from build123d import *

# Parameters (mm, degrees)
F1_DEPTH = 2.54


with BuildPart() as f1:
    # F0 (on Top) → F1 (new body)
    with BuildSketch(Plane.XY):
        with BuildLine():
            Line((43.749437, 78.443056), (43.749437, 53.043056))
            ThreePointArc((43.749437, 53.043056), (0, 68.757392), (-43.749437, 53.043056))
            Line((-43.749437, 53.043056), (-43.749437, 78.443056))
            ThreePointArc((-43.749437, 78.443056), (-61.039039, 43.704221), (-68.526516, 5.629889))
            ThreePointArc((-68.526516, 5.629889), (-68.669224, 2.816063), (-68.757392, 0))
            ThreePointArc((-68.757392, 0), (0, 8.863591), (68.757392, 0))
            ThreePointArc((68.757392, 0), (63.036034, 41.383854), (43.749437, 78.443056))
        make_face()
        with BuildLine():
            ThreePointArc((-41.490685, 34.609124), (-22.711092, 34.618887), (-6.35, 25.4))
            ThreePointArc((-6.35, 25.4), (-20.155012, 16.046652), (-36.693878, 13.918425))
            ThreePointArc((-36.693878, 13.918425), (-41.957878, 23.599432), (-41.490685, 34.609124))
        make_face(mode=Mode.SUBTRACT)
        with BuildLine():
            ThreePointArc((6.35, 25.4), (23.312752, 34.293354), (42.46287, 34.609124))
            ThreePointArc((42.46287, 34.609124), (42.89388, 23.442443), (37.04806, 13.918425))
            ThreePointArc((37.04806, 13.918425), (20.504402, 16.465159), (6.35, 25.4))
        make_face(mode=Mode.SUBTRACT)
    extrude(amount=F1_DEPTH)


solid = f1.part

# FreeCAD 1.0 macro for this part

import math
import FreeCAD as App
import Part
import Sketcher
from FreeCAD import Vector
Q = App.Units.Quantity

doc = App.newDocument("Part")
params = doc.addObject("Spreadsheet::Sheet", "Params")
for row, (alias, value) in enumerate([
    ("sketch1_height", "1 in"),
    ("pad1_length", "0.1 in"),
], start=1):
    params.set(f"A{row}", alias)
    params.set(f"B{row}", "=" + value)
    params.setAlias(f"B{row}", alias)

body = doc.addObject("PartDesign::Body", "Body")

# Sketch on XY plane
sketch1 = body.newObject("Sketcher::SketchObject", "Sketch")
sketch1.AttachmentSupport = (doc.getObject("XY_Plane"), [""])
sketch1.MapMode = "FlatFace"
sketch1.addGeometry(Part.LineSegment(Vector(43.749437, 78.443056, 0), Vector(43.749437, 53.043056, 0)), False)
sketch1.addGeometry(Part.ArcOfCircle(Part.Circle(Vector(0, -0.000002, 0), Vector(0, 0, 1), 68.757394), math.radians(50.484495), math.radians(129.515505)), False)
sketch1.addGeometry(Part.LineSegment(Vector(-43.749437, 53.043056, 0), Vector(-43.749437, 78.443056, 0)), False)
sketch1.addGeometry(Part.ArcOfCircle(Part.Circle(Vector(76.631078, -3.142572, 0), Vector(0, 0, 1), 145.42243), math.radians(145.873282), math.radians(176.54159)), False)
sketch1.addGeometry(Part.ArcOfCircle(Part.Circle(Vector(76.630629, -3.142536, 0), Vector(0, 0, 1), 145.42198), math.radians(176.541594), math.radians(178.761755)), False)
sketch1.addGeometry(Part.ArcOfCircle(Part.Circle(Vector(0, -262.25351, 0), Vector(0, 0, 1), 271.117101), math.radians(75.308898), math.radians(104.691102)), False)
sketch1.addGeometry(Part.ArcOfCircle(Part.Circle(Vector(-53.757498, 4.149616, 0), Vector(0, 0, 1), 122.585144), math.radians(-1.939884), math.radians(37.304856)), False)
sketch1.addGeometry(Part.ArcOfCircle(Part.Circle(Vector(34.895399, 54.942082, 0), Vector(0, 0, 1), 41.080097), math.radians(-134.016997), math.radians(-86.996236)), False)
sketch1.addGeometry(Part.ArcOfCircle(Part.Circle(Vector(33.55253, -5.861143, 0), Vector(0, 0, 1), 41.439555), math.radians(77.583289), math.radians(131.028834)), False)
sketch1.addGeometry(Part.ArcOfCircle(Part.Circle(Vector(24.273668, 28.315401, 0), Vector(0, 0, 1), 19.247286), math.radians(-48.417456), math.radians(19.086349)), False)
sketch1.addGeometry(Part.ArcOfCircle(Part.Circle(Vector(-21.850738, 28.26095, 0), Vector(0, 0, 1), 20.640418), math.radians(162.087733), math.radians(224.017315)), False)
sketch1.addGeometry(Part.ArcOfCircle(Part.Circle(Vector(-32.082301, -1.14029, 0), Vector(0, 0, 1), 36.966719), math.radians(45.885563), math.radians(104.744528)), False)
sketch1.addGeometry(Part.ArcOfCircle(Part.Circle(Vector(-32.893482, 49.712294, 0), Vector(0, 0, 1), 35.995057), math.radians(-96.060645), math.radians(-42.487882)), False)
sketch1.addConstraint(Sketcher.Constraint("Coincident", 0, 2, 1, 1))
sketch1.addConstraint(Sketcher.Constraint("Coincident", 1, 2, 2, 1))
sketch1.addConstraint(Sketcher.Constraint("Coincident", 2, 2, 3, 1))
sketch1.addConstraint(Sketcher.Constraint("Tangent", 3, 2, 4, 1))
sketch1.addConstraint(Sketcher.Constraint("Coincident", 4, 2, 5, 2))
sketch1.addConstraint(Sketcher.Constraint("Coincident", 5, 1, 6, 1))
sketch1.addConstraint(Sketcher.Constraint("Coincident", 6, 2, 0, 1))
sketch1.addConstraint(Sketcher.Constraint("Coincident", 7, 1, 8, 2))
sketch1.addConstraint(Sketcher.Constraint("Coincident", 8, 1, 9, 2))
sketch1.addConstraint(Sketcher.Constraint("Coincident", 9, 1, 7, 2))
sketch1.addConstraint(Sketcher.Constraint("Coincident", 10, 1, 11, 2))
sketch1.addConstraint(Sketcher.Constraint("Coincident", 11, 1, 12, 2))
sketch1.addConstraint(Sketcher.Constraint("Coincident", 12, 1, 10, 2))
sketch1.addConstraint(Sketcher.Constraint("Vertical", 0))
sketch1.addConstraint(Sketcher.Constraint("Vertical", 2))
sketch1.addConstraint(Sketcher.Constraint("Coincident", 1, 3, -1, 1))
sketch1.addConstraint(Sketcher.Constraint("Symmetric", 4, 2, 5, 1, -1, 1))
sketch1.addConstraint(Sketcher.Constraint("Symmetric", 2, 2, 6, 2, -2))
sketch1.addConstraint(Sketcher.Constraint("Symmetric", 7, 1, 11, 1, -2))
sketch1.addConstraint(Sketcher.Constraint("PointOnObject", 5, 3, -2))
sketch1.addConstraint(Sketcher.Constraint("Horizontal", 8, 1, 10, 1))
sketch1.addConstraint(Sketcher.Constraint("Horizontal", 9, 1, 12, 1))
sketch1.addConstraint(Sketcher.Constraint("DistanceY", 0, 2, 0, 1, Q("1 in")))
sketch1.addConstraint(Sketcher.Constraint("DistanceY", -1, 1, 7, 1, Q("1 in")))
sketch1.addConstraint(Sketcher.Constraint("DistanceX", 11, 1, 7, 1, Q("0.5 in")))
sketch1.addConstraint(Sketcher.Constraint("Radius", 5, 271.117101))
sketch1.addConstraint(Sketcher.Constraint("Radius", 3, 145.42243))
sketch1.addConstraint(Sketcher.Constraint("Radius", 4, 145.42198))
sketch1.addConstraint(Sketcher.Constraint("Radius", 11, 36.966719))
sketch1.addConstraint(Sketcher.Constraint("Radius", 1, 68.757394))
sketch1.addConstraint(Sketcher.Constraint("Radius", 6, 122.585144))
sketch1.addConstraint(Sketcher.Constraint("Radius", 7, 41.080097))
sketch1.addConstraint(Sketcher.Constraint("Radius", 8, 41.439555))
sketch1.addConstraint(Sketcher.Constraint("Radius", 9, 19.247286))
sketch1.addConstraint(Sketcher.Constraint("Radius", 10, 20.640418))
sketch1.addConstraint(Sketcher.Constraint("Radius", 12, 35.995057))
sketch1.addConstraint(Sketcher.Constraint("DistanceX", 10, 3, 7, 3, Q("2.2340999 in")))
sketch1.addConstraint(Sketcher.Constraint("DistanceX", 1, 2, 12, 3, Q("0.4273998 in")))
sketch1.addConstraint(Sketcher.Constraint("DistanceX", -1, 1, 7, 3, 34.895399))
sketch1.addConstraint(Sketcher.Constraint("DistanceY", -1, 1, 9, 3, 28.315401))
sketch1.addConstraint(Sketcher.Constraint("DistanceX", 11, 3, -1, 1, 32.082301))
sketch1.addConstraint(Sketcher.Constraint("DistanceX", 8, 3, 4, 3, 43.078099))
sketch1.addConstraint(Sketcher.Constraint("DistanceY", 8, 3, 0, 2, 58.904199))
sketch1.addConstraint(Sketcher.Constraint("DistanceX", 2, 2, 10, 3, 21.898699))
sketch1.addConstraint(Sketcher.Constraint("DistanceY", -1, 1, 3, 2, 5.629889))
sketch1.setExpression("Constraints[22]", "Params.sketch1_height")
pad1 = body.newObject("PartDesign::Pad", "Pad")
pad1.Profile = sketch1
pad1.setExpression("Length", "Params.pad1_length")

doc.recompute()
